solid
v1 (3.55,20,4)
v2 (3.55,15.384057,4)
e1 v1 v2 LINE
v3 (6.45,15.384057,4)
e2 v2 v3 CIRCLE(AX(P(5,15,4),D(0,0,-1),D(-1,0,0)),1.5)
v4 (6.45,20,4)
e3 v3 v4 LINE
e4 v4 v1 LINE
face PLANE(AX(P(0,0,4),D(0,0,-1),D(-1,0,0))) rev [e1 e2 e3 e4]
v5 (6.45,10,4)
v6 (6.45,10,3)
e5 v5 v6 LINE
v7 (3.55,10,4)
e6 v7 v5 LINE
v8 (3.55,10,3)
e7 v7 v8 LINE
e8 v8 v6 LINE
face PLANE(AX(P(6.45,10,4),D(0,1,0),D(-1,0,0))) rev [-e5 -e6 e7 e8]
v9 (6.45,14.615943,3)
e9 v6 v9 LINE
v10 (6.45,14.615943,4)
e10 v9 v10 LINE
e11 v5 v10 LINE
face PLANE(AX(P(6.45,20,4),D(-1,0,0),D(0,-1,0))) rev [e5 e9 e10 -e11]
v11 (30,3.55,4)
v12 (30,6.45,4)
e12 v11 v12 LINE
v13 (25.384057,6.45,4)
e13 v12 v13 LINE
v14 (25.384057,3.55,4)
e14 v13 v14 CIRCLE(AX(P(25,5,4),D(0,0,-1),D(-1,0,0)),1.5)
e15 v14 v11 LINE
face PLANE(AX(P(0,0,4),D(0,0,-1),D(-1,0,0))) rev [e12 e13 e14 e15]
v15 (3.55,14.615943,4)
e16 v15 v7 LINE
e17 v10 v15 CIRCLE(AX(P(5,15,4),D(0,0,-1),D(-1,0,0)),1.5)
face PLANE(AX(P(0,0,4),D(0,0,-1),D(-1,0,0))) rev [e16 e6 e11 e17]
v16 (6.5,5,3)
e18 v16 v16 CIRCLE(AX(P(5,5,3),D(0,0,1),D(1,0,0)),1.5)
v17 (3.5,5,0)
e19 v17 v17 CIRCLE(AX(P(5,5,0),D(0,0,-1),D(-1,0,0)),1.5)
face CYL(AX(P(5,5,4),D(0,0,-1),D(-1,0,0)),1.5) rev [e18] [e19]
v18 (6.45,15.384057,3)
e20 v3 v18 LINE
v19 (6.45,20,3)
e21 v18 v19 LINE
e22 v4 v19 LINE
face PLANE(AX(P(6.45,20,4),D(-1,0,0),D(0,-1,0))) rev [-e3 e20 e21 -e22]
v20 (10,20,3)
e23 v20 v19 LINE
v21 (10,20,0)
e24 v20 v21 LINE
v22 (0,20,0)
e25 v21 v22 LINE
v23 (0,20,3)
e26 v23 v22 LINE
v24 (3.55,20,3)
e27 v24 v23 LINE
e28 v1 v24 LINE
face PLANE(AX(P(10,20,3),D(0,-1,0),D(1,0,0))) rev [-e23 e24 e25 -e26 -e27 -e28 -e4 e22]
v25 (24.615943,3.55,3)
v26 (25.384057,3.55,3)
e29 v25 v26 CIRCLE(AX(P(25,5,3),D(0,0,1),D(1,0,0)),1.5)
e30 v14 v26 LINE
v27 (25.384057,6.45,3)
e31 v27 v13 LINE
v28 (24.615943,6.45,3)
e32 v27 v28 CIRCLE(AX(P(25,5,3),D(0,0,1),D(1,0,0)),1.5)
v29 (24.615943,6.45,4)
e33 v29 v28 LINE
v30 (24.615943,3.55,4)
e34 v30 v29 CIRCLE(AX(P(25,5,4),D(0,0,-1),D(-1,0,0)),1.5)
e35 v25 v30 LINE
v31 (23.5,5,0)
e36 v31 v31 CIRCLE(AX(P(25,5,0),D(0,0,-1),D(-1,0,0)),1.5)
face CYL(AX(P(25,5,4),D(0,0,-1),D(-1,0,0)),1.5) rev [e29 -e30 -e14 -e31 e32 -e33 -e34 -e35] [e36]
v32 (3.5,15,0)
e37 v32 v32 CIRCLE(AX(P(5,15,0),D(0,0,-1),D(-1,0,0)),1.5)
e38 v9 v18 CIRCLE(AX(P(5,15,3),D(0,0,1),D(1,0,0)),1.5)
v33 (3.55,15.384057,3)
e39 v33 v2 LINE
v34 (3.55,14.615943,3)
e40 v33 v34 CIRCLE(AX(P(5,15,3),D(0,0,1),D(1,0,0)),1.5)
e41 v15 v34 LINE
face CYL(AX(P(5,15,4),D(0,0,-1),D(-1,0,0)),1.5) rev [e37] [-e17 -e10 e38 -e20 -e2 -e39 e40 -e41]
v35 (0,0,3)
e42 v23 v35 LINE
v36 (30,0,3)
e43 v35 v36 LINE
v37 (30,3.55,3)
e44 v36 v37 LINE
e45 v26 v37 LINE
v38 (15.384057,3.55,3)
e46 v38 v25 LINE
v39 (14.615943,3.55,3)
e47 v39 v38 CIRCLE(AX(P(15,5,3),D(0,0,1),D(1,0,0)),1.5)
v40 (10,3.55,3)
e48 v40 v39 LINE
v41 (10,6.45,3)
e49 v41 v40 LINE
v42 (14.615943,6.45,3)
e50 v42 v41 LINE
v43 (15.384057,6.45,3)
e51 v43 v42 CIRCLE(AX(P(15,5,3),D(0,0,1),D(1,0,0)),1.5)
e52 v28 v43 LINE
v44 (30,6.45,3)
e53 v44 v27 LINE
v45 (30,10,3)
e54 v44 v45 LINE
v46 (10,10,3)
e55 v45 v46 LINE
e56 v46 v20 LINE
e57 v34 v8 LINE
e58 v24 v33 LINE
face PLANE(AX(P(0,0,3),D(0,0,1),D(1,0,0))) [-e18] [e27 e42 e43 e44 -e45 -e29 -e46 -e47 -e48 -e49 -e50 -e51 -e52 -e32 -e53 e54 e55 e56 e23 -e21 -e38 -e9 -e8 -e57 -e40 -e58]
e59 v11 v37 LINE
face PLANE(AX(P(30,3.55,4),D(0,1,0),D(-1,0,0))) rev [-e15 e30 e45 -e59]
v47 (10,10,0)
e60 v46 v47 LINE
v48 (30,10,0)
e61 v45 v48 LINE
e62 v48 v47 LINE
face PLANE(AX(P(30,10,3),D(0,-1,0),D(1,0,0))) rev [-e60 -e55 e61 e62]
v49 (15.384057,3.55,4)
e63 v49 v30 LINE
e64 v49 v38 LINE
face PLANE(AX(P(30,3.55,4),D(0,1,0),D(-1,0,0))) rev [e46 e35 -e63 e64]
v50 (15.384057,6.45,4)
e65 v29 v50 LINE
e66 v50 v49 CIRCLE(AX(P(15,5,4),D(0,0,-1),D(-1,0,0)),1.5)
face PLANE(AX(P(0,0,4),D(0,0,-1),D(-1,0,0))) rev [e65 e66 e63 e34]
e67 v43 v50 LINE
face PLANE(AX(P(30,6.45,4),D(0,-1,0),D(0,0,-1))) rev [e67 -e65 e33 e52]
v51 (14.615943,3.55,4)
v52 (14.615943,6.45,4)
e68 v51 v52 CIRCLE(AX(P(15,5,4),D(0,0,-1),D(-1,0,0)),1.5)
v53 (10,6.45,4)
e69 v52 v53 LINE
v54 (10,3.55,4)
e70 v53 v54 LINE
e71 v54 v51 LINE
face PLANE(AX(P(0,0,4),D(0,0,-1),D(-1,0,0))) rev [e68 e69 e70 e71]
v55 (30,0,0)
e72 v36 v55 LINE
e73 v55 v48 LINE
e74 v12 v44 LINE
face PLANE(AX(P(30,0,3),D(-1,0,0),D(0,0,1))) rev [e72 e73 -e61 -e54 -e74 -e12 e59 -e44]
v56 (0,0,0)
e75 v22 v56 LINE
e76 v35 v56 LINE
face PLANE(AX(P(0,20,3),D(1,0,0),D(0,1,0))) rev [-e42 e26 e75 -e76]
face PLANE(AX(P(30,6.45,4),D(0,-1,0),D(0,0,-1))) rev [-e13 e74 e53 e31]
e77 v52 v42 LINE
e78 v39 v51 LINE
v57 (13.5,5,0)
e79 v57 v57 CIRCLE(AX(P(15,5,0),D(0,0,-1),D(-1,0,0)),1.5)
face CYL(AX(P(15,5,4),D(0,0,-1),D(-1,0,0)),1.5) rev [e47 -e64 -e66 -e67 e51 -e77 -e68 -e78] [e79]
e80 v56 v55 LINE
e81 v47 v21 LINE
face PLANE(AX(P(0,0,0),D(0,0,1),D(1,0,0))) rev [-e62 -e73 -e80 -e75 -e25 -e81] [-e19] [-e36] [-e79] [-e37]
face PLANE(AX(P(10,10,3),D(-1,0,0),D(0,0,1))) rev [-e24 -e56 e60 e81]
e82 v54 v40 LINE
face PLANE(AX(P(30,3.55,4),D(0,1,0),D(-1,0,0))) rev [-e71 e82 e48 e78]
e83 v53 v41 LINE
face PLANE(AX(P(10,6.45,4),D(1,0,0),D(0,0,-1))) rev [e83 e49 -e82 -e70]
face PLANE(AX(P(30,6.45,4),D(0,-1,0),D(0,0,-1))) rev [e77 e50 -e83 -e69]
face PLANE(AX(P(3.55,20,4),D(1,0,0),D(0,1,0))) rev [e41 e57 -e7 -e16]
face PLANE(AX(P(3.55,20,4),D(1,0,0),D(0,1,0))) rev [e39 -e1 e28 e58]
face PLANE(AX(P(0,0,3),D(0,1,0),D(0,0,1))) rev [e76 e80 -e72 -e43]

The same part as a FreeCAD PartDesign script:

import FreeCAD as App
import Part
import Sketcher

V = App.Vector
Q = App.Units.Quantity


def add_polygon(sketch, points):
    """Adds a closed chain of lines whose ends are joined by coincident constraints."""
    first, n = sketch.GeometryCount, len(points)
    for a, b in zip(points, points[1:] + points[:1]):
        sketch.addGeometry(Part.LineSegment(App.Vector(*a, 0), App.Vector(*b, 0)), False)
    for i in range(n):
        sketch.addConstraint(Sketcher.Constraint("Coincident", first + i, 2, first + (i + 1) % n, 1))

doc = App.newDocument("Part")
body = doc.addObject("PartDesign::Body", "Body")

# Sketch on XY plane
sketch1 = body.newObject("Sketcher::SketchObject", "Sketch")
sketch1.AttachmentSupport = (doc.getObject("XY_Plane"), [""])
sketch1.MapMode = "FlatFace"
add_polygon(sketch1, [(0, 0), (30, 0), (30, 10), (10, 10), (10, 20), (0, 20)])  # lines 0-5
sketch1.addConstraint(Sketcher.Constraint("Horizontal", 0))
sketch1.addConstraint(Sketcher.Constraint("Vertical", 1))
sketch1.addConstraint(Sketcher.Constraint("Horizontal", 2))
sketch1.addConstraint(Sketcher.Constraint("Vertical", 3))
sketch1.addConstraint(Sketcher.Constraint("Horizontal", 4))
sketch1.addConstraint(Sketcher.Constraint("Vertical", 5))
sketch1.addConstraint(Sketcher.Constraint("Coincident", 5, 2, -1, 1))
sketch1.addConstraint(Sketcher.Constraint("Equal", 4, 1))
sketch1.addConstraint(Sketcher.Constraint("Equal", 1, 3))
sketch1.addConstraint(Sketcher.Constraint("Equal", 2, 5))
sketch1.addConstraint(Sketcher.Constraint("DistanceX", 0, 1, 0, 2, Q("30 mm")))
pad1 = body.newObject("PartDesign::Pad", "Pad")
pad1.Profile = sketch1
pad1.Length = 3

# Sketch on XY plane
sketch2 = body.newObject("Sketcher::SketchObject", "Sketch001")
sketch2.AttachmentSupport = (doc.getObject("XY_Plane"), [""])
sketch2.MapMode = "FlatFace"
sketch2.AttachmentOffset = App.Placement(V(0, 0, 3), App.Rotation())
add_polygon(sketch2, [(3.5, 20), (3.5, 10), (6.5, 10), (6.5, 20)])  # lines 0-3
add_polygon(sketch2, [(10, 6.5), (10, 3.5), (30, 3.5), (30, 6.5)])  # lines 4-7
sketch2.addConstraint(Sketcher.Constraint("Vertical", 0))
sketch2.addConstraint(Sketcher.Constraint("Horizontal", 1))
sketch2.addConstraint(Sketcher.Constraint("Vertical", 2))
sketch2.addConstraint(Sketcher.Constraint("Horizontal", 3))
sketch2.addConstraint(Sketcher.Constraint("Vertical", 4))
sketch2.addConstraint(Sketcher.Constraint("Horizontal", 5))
sketch2.addConstraint(Sketcher.Constraint("Vertical", 6))
sketch2.addConstraint(Sketcher.Constraint("Horizontal", 7))
sketch2.addConstraint(Sketcher.Constraint("Equal", 3, 4))
sketch2.addConstraint(Sketcher.Constraint("DistanceX", 5, 1, 5, 2, Q("20 mm")))
sketch2.addConstraint(Sketcher.Constraint("DistanceY", 0, 2, 0, 1, Q("10 mm")))
sketch2.addConstraint(Sketcher.Constraint("DistanceX", 1, 1, 1, 2, Q("2.9 mm")))
sketch2.addConstraint(Sketcher.Constraint("DistanceY", -1, 1, 0, 2, Q("10 mm")))
sketch2.addConstraint(Sketcher.Constraint("DistanceX", -1, 1, 4, 2, Q("10 mm")))
sketch2.addConstraint(Sketcher.Constraint("DistanceX", -1, 1, 0, 2, Q("3.55 mm")))
sketch2.addConstraint(Sketcher.Constraint("DistanceY", -1, 1, 4, 2, Q("3.55 mm")))
pad2 = body.newObject("PartDesign::Pad", "Pad001")
pad2.Profile = sketch2
pad2.Length = 1

# Sketch on XY plane
sketch3 = body.newObject("Sketcher::SketchObject", "Sketch002")
sketch3.AttachmentSupport = (doc.getObject("XY_Plane"), [""])
sketch3.MapMode = "FlatFace"
sketch3.addGeometry(Part.Circle(V(25, 5, 0), V(0, 0, 1), 1.5), False)
sketch3.addGeometry(Part.Circle(V(15, 5, 0), V(0, 0, 1), 1.5), False)
sketch3.addGeometry(Part.Circle(V(5, 15, 0), V(0, 0, 1), 1.5), False)
sketch3.addGeometry(Part.Circle(V(5, 5, 0), V(0, 0, 1), 1.5), False)
sketch3.addConstraint(Sketcher.Constraint("Equal", 0, 1))
sketch3.addConstraint(Sketcher.Constraint("Equal", 1, 2))
sketch3.addConstraint(Sketcher.Constraint("Equal", 2, 3))
sketch3.addConstraint(Sketcher.Constraint("Horizontal", 0, 3, 1, 3))
sketch3.addConstraint(Sketcher.Constraint("Horizontal", 1, 3, 3, 3))
sketch3.addConstraint(Sketcher.Constraint("Vertical", 2, 3, 3, 3))
sketch3.addConstraint(Sketcher.Constraint("Diameter", 0, Q("3 mm")))
sketch3.addConstraint(Sketcher.Constraint("DistanceX", -1, 1, 0, 3, Q("25 mm")))
sketch3.addConstraint(Sketcher.Constraint("DistanceY", -1, 1, 0, 3, Q("5 mm")))
sketch3.addConstraint(Sketcher.Constraint("DistanceX", -1, 1, 1, 3, Q("15 mm")))
sketch3.addConstraint(Sketcher.Constraint("DistanceX", -1, 1, 2, 3, Q("5 mm")))
sketch3.addConstraint(Sketcher.Constraint("DistanceY", -1, 1, 2, 3, Q("15 mm")))
pocket1 = body.newObject("PartDesign::Pocket", "Pocket")
pocket1.Profile = sketch3
pocket1.Type = "ThroughAll"
pocket1.Reversed = True

doc.recompute()
